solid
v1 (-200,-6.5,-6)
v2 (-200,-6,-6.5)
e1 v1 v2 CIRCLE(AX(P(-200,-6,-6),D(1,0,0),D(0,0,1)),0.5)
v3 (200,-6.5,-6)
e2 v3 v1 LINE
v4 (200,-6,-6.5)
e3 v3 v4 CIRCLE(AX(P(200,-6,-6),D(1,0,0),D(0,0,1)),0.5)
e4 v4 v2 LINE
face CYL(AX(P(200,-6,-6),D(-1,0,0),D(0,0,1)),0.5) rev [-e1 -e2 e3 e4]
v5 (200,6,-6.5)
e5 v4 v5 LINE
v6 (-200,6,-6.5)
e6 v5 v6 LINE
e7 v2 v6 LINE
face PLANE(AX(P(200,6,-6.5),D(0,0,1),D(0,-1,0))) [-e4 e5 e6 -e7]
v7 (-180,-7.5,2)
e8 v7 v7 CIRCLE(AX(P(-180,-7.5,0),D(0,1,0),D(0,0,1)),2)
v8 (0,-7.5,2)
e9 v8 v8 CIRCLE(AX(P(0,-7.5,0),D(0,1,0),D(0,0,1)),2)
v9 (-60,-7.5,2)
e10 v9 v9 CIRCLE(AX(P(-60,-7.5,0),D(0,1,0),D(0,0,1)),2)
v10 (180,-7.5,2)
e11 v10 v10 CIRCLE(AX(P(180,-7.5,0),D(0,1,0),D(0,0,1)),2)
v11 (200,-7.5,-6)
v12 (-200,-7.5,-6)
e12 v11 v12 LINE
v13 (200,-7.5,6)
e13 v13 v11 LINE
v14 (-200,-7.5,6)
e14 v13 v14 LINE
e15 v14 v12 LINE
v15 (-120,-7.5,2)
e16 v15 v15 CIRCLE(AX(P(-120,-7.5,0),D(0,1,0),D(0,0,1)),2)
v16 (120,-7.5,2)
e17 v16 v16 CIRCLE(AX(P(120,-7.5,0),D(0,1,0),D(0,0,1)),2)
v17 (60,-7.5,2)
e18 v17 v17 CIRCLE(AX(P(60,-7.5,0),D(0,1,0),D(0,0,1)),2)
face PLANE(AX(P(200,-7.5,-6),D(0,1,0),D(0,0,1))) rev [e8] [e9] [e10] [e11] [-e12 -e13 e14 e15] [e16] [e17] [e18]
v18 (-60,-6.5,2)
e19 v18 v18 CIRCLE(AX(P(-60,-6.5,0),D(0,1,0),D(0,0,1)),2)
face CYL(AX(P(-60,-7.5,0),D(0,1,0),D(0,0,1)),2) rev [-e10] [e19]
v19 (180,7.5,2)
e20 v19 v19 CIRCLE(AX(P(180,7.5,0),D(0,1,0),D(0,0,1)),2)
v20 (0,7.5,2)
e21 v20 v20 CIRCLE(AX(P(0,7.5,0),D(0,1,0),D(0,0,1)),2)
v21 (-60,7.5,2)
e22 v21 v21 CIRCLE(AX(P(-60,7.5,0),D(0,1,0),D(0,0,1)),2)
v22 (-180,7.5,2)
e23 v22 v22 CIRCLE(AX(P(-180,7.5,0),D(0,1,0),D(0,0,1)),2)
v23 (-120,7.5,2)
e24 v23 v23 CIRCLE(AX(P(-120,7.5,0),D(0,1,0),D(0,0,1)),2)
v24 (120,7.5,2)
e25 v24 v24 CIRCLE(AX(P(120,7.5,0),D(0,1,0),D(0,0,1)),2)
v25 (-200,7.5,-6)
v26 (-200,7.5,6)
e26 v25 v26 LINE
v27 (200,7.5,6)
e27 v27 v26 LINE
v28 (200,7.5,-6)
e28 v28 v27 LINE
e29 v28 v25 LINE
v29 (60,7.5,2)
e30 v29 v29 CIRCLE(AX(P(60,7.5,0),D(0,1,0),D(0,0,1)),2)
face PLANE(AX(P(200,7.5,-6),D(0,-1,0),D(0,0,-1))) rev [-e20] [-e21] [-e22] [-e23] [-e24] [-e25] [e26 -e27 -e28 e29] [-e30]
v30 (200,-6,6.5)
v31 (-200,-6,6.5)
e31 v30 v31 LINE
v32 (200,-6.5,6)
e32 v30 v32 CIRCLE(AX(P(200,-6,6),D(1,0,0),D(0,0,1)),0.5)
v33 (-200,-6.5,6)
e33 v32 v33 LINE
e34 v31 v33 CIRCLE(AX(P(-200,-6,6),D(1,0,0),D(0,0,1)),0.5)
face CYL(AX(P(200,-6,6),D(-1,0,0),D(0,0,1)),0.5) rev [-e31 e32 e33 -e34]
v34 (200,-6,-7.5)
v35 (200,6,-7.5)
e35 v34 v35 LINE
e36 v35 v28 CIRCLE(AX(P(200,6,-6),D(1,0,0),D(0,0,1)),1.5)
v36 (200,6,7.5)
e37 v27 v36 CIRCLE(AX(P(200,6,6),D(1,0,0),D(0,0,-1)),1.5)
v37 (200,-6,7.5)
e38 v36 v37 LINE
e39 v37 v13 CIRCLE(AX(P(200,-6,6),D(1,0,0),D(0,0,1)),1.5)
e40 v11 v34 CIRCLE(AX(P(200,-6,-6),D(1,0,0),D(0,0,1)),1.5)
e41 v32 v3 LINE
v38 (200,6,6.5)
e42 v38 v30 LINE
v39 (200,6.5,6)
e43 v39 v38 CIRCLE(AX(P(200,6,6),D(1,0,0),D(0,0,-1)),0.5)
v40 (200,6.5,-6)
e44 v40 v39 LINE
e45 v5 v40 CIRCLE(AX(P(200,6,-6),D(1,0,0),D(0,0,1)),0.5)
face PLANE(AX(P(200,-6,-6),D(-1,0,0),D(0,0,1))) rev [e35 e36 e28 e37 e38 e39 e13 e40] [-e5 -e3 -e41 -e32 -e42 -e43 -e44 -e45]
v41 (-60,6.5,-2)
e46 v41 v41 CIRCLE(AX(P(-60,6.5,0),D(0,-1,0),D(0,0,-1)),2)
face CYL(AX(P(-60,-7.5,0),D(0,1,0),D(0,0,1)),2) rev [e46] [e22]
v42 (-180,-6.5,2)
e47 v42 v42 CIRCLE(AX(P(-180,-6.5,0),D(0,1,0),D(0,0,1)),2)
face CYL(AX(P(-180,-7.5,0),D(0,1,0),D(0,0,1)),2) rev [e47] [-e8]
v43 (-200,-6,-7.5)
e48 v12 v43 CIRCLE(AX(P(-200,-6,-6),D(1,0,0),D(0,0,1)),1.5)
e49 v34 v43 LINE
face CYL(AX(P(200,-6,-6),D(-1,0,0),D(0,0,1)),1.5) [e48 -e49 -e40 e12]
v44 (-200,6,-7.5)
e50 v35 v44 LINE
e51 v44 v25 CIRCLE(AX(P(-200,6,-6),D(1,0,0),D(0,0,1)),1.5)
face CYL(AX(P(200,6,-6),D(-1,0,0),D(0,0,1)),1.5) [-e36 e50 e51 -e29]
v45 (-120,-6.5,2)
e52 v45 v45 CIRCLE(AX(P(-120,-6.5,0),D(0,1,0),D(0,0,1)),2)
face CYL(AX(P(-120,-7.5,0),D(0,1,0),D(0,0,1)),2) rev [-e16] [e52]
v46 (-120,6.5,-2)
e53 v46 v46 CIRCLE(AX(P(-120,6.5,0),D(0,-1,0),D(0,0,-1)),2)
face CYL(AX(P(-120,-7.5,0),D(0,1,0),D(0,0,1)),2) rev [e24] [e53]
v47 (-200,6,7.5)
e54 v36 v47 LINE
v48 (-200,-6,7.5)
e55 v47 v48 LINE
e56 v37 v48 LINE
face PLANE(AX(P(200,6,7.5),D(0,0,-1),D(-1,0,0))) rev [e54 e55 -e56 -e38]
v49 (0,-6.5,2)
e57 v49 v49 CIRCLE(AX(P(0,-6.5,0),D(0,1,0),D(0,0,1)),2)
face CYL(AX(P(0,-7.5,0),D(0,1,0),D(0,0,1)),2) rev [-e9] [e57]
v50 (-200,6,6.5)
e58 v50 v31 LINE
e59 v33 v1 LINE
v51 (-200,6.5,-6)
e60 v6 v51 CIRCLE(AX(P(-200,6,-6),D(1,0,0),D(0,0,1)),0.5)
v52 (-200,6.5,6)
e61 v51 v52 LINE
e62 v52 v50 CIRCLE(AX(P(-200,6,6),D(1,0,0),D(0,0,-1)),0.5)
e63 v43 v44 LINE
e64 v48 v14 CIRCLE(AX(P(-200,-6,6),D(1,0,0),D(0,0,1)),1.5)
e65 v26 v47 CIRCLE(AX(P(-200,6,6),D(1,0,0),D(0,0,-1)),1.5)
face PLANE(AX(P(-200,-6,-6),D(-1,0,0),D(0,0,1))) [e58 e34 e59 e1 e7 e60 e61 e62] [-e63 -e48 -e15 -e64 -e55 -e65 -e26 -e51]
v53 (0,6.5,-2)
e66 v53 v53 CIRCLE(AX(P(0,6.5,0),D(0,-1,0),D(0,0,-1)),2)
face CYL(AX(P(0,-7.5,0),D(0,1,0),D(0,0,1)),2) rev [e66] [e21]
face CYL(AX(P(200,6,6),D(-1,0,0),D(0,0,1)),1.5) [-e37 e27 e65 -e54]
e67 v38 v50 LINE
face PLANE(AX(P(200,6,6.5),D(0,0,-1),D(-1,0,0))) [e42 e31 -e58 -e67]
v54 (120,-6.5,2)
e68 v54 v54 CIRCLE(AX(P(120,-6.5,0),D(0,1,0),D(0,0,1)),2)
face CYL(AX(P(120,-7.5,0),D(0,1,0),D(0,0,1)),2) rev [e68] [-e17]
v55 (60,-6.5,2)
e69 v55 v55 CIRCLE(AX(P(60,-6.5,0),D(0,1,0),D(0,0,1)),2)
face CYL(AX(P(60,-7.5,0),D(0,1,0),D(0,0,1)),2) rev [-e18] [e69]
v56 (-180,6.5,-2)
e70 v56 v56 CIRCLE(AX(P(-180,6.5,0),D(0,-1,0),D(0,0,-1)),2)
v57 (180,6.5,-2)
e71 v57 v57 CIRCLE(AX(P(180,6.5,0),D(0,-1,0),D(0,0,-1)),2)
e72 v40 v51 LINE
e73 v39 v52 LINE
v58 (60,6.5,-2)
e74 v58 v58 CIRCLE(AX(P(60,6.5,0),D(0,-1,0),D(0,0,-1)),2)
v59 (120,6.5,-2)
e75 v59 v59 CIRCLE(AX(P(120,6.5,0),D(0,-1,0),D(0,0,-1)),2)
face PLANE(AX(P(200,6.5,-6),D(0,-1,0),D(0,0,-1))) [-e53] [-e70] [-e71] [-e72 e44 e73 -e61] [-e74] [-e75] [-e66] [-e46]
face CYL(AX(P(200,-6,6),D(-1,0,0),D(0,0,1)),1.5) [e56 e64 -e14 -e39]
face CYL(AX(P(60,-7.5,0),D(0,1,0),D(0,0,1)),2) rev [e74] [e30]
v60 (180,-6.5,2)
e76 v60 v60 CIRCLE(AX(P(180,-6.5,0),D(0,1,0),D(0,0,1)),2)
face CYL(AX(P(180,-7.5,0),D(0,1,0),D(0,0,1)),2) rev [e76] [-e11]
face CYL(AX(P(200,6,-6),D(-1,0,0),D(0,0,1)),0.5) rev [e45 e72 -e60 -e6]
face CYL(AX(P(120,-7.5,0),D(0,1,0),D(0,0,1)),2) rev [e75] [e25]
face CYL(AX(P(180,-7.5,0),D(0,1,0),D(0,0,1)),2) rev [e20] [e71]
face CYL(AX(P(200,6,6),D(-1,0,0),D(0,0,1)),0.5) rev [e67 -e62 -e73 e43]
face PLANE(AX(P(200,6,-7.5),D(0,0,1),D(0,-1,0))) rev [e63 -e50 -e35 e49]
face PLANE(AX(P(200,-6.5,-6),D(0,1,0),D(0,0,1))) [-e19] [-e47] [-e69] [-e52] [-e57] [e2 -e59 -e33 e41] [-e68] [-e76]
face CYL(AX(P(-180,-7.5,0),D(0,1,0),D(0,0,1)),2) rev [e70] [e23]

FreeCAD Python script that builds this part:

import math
import FreeCAD as App
import Part
import Sketcher
from FreeCAD import Vector

doc = App.newDocument("Part")
body = doc.addObject("PartDesign::Body", "Body")

# Sketch on YZ plane
sketch1 = body.newObject("Sketcher::SketchObject", "Sketch")
sketch1.AttachmentSupport = (doc.getObject("YZ_Plane"), [""])
sketch1.MapMode = "FlatFace"
sketch1.addGeometry([
    Part.LineSegment(Vector(7.5, -6, 0), Vector(7.5, 6, 0)),  # 0
    Part.ArcOfCircle(Part.Circle(Vector(6, 6, 0), Vector(0, 0, 1), 1.5), math.radians(0), math.radians(90)),  # 1
    Part.LineSegment(Vector(6, 7.5, 0), Vector(-6, 7.5, 0)),  # 2
    Part.ArcOfCircle(Part.Circle(Vector(-6, 6, 0), Vector(0, 0, 1), 1.5), math.radians(90), math.radians(180)),  # 3
    Part.LineSegment(Vector(-7.5, 6, 0), Vector(-7.5, -6, 0)),  # 4
    Part.ArcOfCircle(Part.Circle(Vector(-6, -6, 0), Vector(0, 0, 1), 1.5), math.radians(180), math.radians(270)),  # 5
    Part.LineSegment(Vector(-6, -7.5, 0), Vector(6, -7.5, 0)),  # 6
    Part.ArcOfCircle(Part.Circle(Vector(6, -6, 0), Vector(0, 0, 1), 1.5), math.radians(-90), math.radians(0)),  # 7
    Part.LineSegment(Vector(6.5, 6, 0), Vector(6.5, -6, 0)),  # 8
    Part.ArcOfCircle(Part.Circle(Vector(6, -6, 0), Vector(0, 0, 1), 0.5), math.radians(-90), math.radians(0)),  # 9
    Part.LineSegment(Vector(6, -6.5, 0), Vector(-6, -6.5, 0)),  # 10
    Part.ArcOfCircle(Part.Circle(Vector(-6, -6, 0), Vector(0, 0, 1), 0.5), math.radians(180), math.radians(270)),  # 11
    Part.LineSegment(Vector(-6.5, -6, 0), Vector(-6.5, 6, 0)),  # 12
    Part.ArcOfCircle(Part.Circle(Vector(-6, 6, 0), Vector(0, 0, 1), 0.5), math.radians(90), math.radians(180)),  # 13
    Part.LineSegment(Vector(-6, 6.5, 0), Vector(6, 6.5, 0)),  # 14
    Part.ArcOfCircle(Part.Circle(Vector(6, 6, 0), Vector(0, 0, 1), 0.5), math.radians(0), math.radians(90)),  # 15
], False)
sketch1.addConstraint([
    Sketcher.Constraint("Tangent", 0, 2, 1, 1),
    Sketcher.Constraint("Tangent", 1, 2, 2, 1),
    Sketcher.Constraint("Tangent", 2, 2, 3, 1),
    Sketcher.Constraint("Tangent", 3, 2, 4, 1),
    Sketcher.Constraint("Tangent", 4, 2, 5, 1),
    Sketcher.Constraint("Tangent", 5, 2, 6, 1),
    Sketcher.Constraint("Tangent", 6, 2, 7, 1),
    Sketcher.Constraint("Tangent", 7, 2, 0, 1),
    Sketcher.Constraint("Tangent", 8, 2, 9, 2),
    Sketcher.Constraint("Tangent", 9, 1, 10, 1),
    Sketcher.Constraint("Tangent", 10, 2, 11, 2),
    Sketcher.Constraint("Tangent", 11, 1, 12, 1),
    Sketcher.Constraint("Tangent", 12, 2, 13, 2),
    Sketcher.Constraint("Tangent", 13, 1, 14, 1),
    Sketcher.Constraint("Tangent", 14, 2, 15, 2),
    Sketcher.Constraint("Tangent", 15, 1, 8, 1),
    Sketcher.Constraint("Vertical", 0),
    Sketcher.Constraint("Horizontal", 2),
    Sketcher.Constraint("Vertical", 4),
    Sketcher.Constraint("Horizontal", 6),
    Sketcher.Constraint("Vertical", 8),
    Sketcher.Constraint("Horizontal", 10),
    Sketcher.Constraint("Vertical", 12),
    Sketcher.Constraint("Horizontal", 14),
    Sketcher.Constraint("Coincident", 9, 3, 7, 3),
    Sketcher.Constraint("Coincident", 11, 3, 5, 3),
    Sketcher.Constraint("Coincident", 13, 3, 3, 3),
    Sketcher.Constraint("Equal", 1, 3),
    Sketcher.Constraint("Equal", 3, 5),
    Sketcher.Constraint("Equal", 5, 7),
    Sketcher.Constraint("Equal", 13, 15),
    Sketcher.Constraint("Symmetric", 1, 3, 5, 3, -1, 1),
    Sketcher.Constraint("Equal", 14, 0),
    Sketcher.Constraint("Radius", 1, 1.5),
    Sketcher.Constraint("Radius", 9, 0.5),
    Sketcher.Constraint("DistanceX", 2, 2, 2, 1, 12.0),
])
pad1 = body.newObject("PartDesign::Pad", "Pad")
pad1.Profile = sketch1
pad1.Length = 400
pad1.Midplane = True

# Sketch on XZ plane
sketch2 = body.newObject("Sketcher::SketchObject", "Sketch001")
sketch2.AttachmentSupport = (doc.getObject("XZ_Plane"), [""])
sketch2.MapMode = "FlatFace"
sketch2.addGeometry([
    Part.Circle(Vector(-180, 0, 0), Vector(0, 0, 1), 2),  # 0
    Part.Circle(Vector(-120, 0, 0), Vector(0, 0, 1), 2),  # 1
    Part.Circle(Vector(-60, 0, 0), Vector(0, 0, 1), 2),  # 2
    Part.Circle(Vector(0, 0, 0), Vector(0, 0, 1), 2),  # 3
    Part.Circle(Vector(60, 0, 0), Vector(0, 0, 1), 2),  # 4
    Part.Circle(Vector(120, 0, 0), Vector(0, 0, 1), 2),  # 5
    Part.Circle(Vector(180, 0, 0), Vector(0, 0, 1), 2),  # 6
], False)
sketch2.addConstraint([
    Sketcher.Constraint("Coincident", 3, 3, -1, 1),
    Sketcher.Constraint("Equal", 0, 1),
    Sketcher.Constraint("Equal", 1, 2),
    Sketcher.Constraint("Equal", 2, 3),
    Sketcher.Constraint("Equal", 3, 4),
    Sketcher.Constraint("Equal", 4, 5),
    Sketcher.Constraint("Equal", 5, 6),
    Sketcher.Constraint("Symmetric", 2, 3, 4, 3, -1, 1),
    Sketcher.Constraint("Symmetric", 1, 3, 5, 3, -1, 1),
    Sketcher.Constraint("Symmetric", 0, 3, 6, 3, -1, 1),
    Sketcher.Constraint("PointOnObject", 0, 3, -1),
    Sketcher.Constraint("PointOnObject", 1, 3, -1),
    Sketcher.Constraint("PointOnObject", 2, 3, -1),
    Sketcher.Constraint("Diameter", 0, 4.0),
    Sketcher.Constraint("DistanceX", 0, 3, -1, 1, 180.0),
    Sketcher.Constraint("DistanceX", 1, 3, -1, 1, 120.0),
    Sketcher.Constraint("DistanceX", 2, 3, -1, 1, 60.0),
])
pocket1 = body.newObject("PartDesign::Pocket", "Pocket")
pocket1.Profile = sketch2
pocket1.Type = "ThroughAll"
pocket1.Midplane = True

doc.recompute()
